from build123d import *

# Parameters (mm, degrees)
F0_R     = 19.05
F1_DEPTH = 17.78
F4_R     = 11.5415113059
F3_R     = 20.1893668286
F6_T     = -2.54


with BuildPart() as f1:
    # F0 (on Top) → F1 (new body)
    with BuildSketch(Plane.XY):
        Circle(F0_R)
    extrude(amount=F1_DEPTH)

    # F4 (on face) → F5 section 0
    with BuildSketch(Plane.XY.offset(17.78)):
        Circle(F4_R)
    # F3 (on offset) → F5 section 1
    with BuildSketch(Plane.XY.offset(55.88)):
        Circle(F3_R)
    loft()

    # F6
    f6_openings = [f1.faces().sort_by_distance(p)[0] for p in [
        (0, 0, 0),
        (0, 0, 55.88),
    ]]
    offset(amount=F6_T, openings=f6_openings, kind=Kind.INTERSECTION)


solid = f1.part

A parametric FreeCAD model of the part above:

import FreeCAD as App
import Part
import Sketcher
from FreeCAD import Vector
Q = App.Units.Quantity


def faces_at(feature, points):
    """Names of the faces that lie closest to the given points."""
    faces = feature.Shape.Faces
    near = lambda p: min(range(len(faces)), key=lambda i: faces[i].distToShape(Part.Vertex(*p))[0])
    return sorted({f"Face{near(p) + 1}" for p in points})

doc = App.newDocument("Part")
body = doc.addObject("PartDesign::Body", "Body")

# Sketch on XY plane
sketch1 = body.newObject("Sketcher::SketchObject", "Sketch")
sketch1.AttachmentSupport = (doc.getObject("XY_Plane"), [""])
sketch1.MapMode = "FlatFace"
sketch1.addGeometry(Part.Circle(Vector(0, 0, 0), Vector(0, 0, 1), 19), False)
sketch1.addConstraint([
    Sketcher.Constraint("Coincident", 0, 3, -1, 1),
    Sketcher.Constraint("Diameter", 0, Q("1.5 in")),
])
pad1 = body.newObject("PartDesign::Pad", "Pad")
pad1.Profile = sketch1
pad1.Length = Q("0.7 in")

# Sketch on XY plane
sketch2 = body.newObject("Sketcher::SketchObject", "Sketch001")
sketch2.AttachmentSupport = (doc.getObject("XY_Plane"), [""])
sketch2.MapMode = "FlatFace"
sketch2.AttachmentOffset = App.Placement(Vector(0, 0, 0.7 * 25.4), App.Rotation())
sketch2.addGeometry(Part.Circle(Vector(0, 0, 0), Vector(0, 0, 1), 12), False)
sketch2.addConstraint([
    Sketcher.Constraint("Coincident", 0, 3, -1, 1),
    Sketcher.Constraint("Diameter", 0, 23.083023),
])

# Sketch on XY plane
sketch3 = body.newObject("Sketcher::SketchObject", "Sketch002")
sketch3.AttachmentSupport = (doc.getObject("XY_Plane"), [""])
sketch3.MapMode = "FlatFace"
sketch3.AttachmentOffset = App.Placement(Vector(0, 0, 2.2 * 25.4), App.Rotation())
sketch3.addGeometry(Part.Circle(Vector(0, 0, 0), Vector(0, 0, 1), 20), False)
sketch3.addConstraint([
    Sketcher.Constraint("Coincident", 0, 3, -1, 1),
    Sketcher.Constraint("Diameter", 0, 40.378734),
])

additiveloft = body.newObject("PartDesign::AdditiveLoft", "AdditiveLoft")
additiveloft.Profile = sketch2
additiveloft.Sections = [sketch3]
doc.recompute()

thickness = body.newObject("PartDesign::Thickness", "Thickness")
thickness.Base = (additiveloft, faces_at(additiveloft, [(0, 0, 0), (0, 0, 55.88)]))
thickness.Value = Q("0.1 in")
thickness.Reversed = True
thickness.Join = "Intersection"

doc.recompute()
